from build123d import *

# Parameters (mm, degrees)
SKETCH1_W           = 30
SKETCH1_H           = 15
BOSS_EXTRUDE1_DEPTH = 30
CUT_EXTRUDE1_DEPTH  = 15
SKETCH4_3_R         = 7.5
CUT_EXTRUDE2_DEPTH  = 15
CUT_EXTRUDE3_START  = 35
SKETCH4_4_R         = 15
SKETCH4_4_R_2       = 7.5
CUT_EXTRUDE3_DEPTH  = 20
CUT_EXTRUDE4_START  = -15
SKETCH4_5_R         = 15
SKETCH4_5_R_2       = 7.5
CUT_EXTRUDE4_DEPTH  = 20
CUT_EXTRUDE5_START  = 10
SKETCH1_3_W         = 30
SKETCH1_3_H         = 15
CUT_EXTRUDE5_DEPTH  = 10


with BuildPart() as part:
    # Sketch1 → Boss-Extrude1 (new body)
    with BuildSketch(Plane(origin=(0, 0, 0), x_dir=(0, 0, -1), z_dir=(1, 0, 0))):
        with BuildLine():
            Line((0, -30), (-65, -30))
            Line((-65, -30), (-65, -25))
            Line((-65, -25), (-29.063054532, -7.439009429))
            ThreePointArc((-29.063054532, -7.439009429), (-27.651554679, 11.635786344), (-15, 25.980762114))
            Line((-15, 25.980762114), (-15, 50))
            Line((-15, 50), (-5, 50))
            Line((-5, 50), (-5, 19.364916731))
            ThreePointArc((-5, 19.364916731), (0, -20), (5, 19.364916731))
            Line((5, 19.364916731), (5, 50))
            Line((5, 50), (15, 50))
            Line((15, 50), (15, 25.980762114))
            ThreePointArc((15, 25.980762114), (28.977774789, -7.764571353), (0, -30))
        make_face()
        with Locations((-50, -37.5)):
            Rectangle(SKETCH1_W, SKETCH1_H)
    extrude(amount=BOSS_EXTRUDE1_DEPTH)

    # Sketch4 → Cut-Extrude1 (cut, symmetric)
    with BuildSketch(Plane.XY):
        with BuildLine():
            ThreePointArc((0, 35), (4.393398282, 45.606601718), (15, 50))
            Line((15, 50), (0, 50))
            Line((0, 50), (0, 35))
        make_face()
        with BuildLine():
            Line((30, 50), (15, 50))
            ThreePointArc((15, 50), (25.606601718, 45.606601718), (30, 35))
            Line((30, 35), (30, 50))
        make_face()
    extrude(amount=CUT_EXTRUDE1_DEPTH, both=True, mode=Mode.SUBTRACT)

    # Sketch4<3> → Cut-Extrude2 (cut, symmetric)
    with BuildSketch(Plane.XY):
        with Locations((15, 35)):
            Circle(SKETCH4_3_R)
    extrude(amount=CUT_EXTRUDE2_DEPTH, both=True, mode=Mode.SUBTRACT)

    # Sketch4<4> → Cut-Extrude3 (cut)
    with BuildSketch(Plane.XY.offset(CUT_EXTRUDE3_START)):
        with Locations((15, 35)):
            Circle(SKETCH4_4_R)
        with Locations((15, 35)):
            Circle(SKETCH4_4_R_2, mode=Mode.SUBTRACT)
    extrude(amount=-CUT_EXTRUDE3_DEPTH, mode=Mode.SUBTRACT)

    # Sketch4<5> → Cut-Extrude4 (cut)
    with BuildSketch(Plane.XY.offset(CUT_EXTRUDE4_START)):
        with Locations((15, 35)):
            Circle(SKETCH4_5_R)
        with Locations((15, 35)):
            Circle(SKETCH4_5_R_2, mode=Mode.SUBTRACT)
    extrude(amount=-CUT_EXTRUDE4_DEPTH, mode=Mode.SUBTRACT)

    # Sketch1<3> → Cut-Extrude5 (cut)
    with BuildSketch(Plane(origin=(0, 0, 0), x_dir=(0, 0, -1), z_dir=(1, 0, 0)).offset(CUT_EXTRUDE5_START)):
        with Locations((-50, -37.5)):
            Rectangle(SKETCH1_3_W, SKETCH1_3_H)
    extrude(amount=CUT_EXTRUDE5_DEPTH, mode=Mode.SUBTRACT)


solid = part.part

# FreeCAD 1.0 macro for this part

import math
import FreeCAD as App
import Part
import Sketcher

V = App.Vector


def add_polygon(sketch, points):
    """Adds a closed chain of lines whose ends are joined by coincident constraints."""
    first, n = sketch.GeometryCount, len(points)
    for a, b in zip(points, points[1:] + points[:1]):
        sketch.addGeometry(Part.LineSegment(App.Vector(*a, 0), App.Vector(*b, 0)), False)
    for i in range(n):
        sketch.addConstraint(Sketcher.Constraint("Coincident", first + i, 2, first + (i + 1) % n, 1))

doc = App.newDocument("Part")
params = doc.addObject("Spreadsheet::Sheet", "Params")
for row, (alias, value) in enumerate([
    ("sketch1_radius", "30 mm"),
    ("sketch1_radius2", "20 mm"),
    ("sketch1_width", "20 mm"),
    ("sketch1_width2", "15 mm"),
    ("sketch1_height", "35 mm"),
    ("pad1_length", "30 mm"),
    ("sketch2_radius", "15 mm"),
    ("pocket1_length", "30 mm"),
    ("sketch3_diameter", "15 mm"),
    ("pocket2_length", "30 mm"),
    ("sketch4_diameter", "30 mm"),
    ("sketch4_diameter2", "15 mm"),
    ("pocket3_length", "20 mm"),
    ("sketch5_diameter", "30 mm"),
    ("sketch5_diameter2", "15 mm"),
    ("pocket4_length", "20 mm"),
    ("sketch6_width", "15 mm"),
    ("sketch6_height", "30 mm"),
    ("pocket5_length", "10 mm"),
], start=1):
    params.set(f"A{row}", alias)
    params.set(f"B{row}", "=" + value)
    params.setAlias(f"B{row}", alias)

body = doc.addObject("PartDesign::Body", "Body")

# Sketch on YZ plane
sketch1 = body.newObject("Sketcher::SketchObject", "Sketch")
sketch1.AttachmentSupport = (doc.getObject("YZ_Plane"), [""])
sketch1.MapMode = "FlatFace"
sketch1.addGeometry(Part.LineSegment(V(-30, 35, 0), V(-30, 0, 0)), False)
sketch1.addGeometry(Part.ArcOfCircle(Part.Circle(V(0, 0, 0), V(0, 0, 1), 30), math.radians(180), math.radians(330)), False)
sketch1.addGeometry(Part.LineSegment(V(26, -15, 0), V(50, -15, 0)), False)
sketch1.addGeometry(Part.LineSegment(V(50, -15, 0), V(50, -5, 0)), False)
sketch1.addGeometry(Part.LineSegment(V(50, -5, 0), V(19, -5, 0)), False)
sketch1.addGeometry(Part.ArcOfCircle(Part.Circle(V(0, 0, 0), V(0, 0, 1), 20), math.radians(14), math.radians(346)), False)
sketch1.addGeometry(Part.LineSegment(V(19, 5, 0), V(50, 5, 0)), False)
sketch1.addGeometry(Part.LineSegment(V(50, 5, 0), V(50, 15, 0)), False)
sketch1.addGeometry(Part.LineSegment(V(50, 15, 0), V(26, 15, 0)), False)
sketch1.addGeometry(Part.ArcOfCircle(Part.Circle(V(0, 0, 0), V(0, 0, 1), 30), math.radians(30), math.radians(104)), False)
sketch1.addGeometry(Part.LineSegment(V(-7, 29, 0), V(-25, 65, 0)), False)
sketch1.addGeometry(Part.LineSegment(V(-25, 65, 0), V(-45, 65, 0)), False)
sketch1.addGeometry(Part.LineSegment(V(-45, 65, 0), V(-45, 35, 0)), False)
sketch1.addGeometry(Part.LineSegment(V(-45, 35, 0), V(-30, 35, 0)), False)
sketch1.addConstraint(Sketcher.Constraint("Tangent", 0, 2, 1, 1))
sketch1.addConstraint(Sketcher.Constraint("Coincident", 1, 2, 2, 1))
sketch1.addConstraint(Sketcher.Constraint("Coincident", 2, 2, 3, 1))
sketch1.addConstraint(Sketcher.Constraint("Coincident", 3, 2, 4, 1))
sketch1.addConstraint(Sketcher.Constraint("Coincident", 4, 2, 5, 2))
sketch1.addConstraint(Sketcher.Constraint("Coincident", 5, 1, 6, 1))
sketch1.addConstraint(Sketcher.Constraint("Coincident", 6, 2, 7, 1))
sketch1.addConstraint(Sketcher.Constraint("Coincident", 7, 2, 8, 1))
sketch1.addConstraint(Sketcher.Constraint("Coincident", 8, 2, 9, 1))
sketch1.addConstraint(Sketcher.Constraint("Coincident", 9, 2, 10, 1))
sketch1.addConstraint(Sketcher.Constraint("Coincident", 10, 2, 11, 1))
sketch1.addConstraint(Sketcher.Constraint("Coincident", 11, 2, 12, 1))
sketch1.addConstraint(Sketcher.Constraint("Coincident", 12, 2, 13, 1))
sketch1.addConstraint(Sketcher.Constraint("Coincident", 13, 2, 0, 1))
sketch1.addConstraint(Sketcher.Constraint("Vertical", 0))
sketch1.addConstraint(Sketcher.Constraint("Horizontal", 2))
sketch1.addConstraint(Sketcher.Constraint("Vertical", 3))
sketch1.addConstraint(Sketcher.Constraint("Horizontal", 4))
sketch1.addConstraint(Sketcher.Constraint("Horizontal", 6))
sketch1.addConstraint(Sketcher.Constraint("Vertical", 7))
sketch1.addConstraint(Sketcher.Constraint("Horizontal", 8))
sketch1.addConstraint(Sketcher.Constraint("Horizontal", 11))
sketch1.addConstraint(Sketcher.Constraint("Vertical", 12))
sketch1.addConstraint(Sketcher.Constraint("Horizontal", 13))
sketch1.addConstraint(Sketcher.Constraint("Coincident", 1, 3, -1, 1))
sketch1.addConstraint(Sketcher.Constraint("Coincident", 5, 3, -1, 1))
sketch1.addConstraint(Sketcher.Constraint("Coincident", 9, 3, -1, 1))
sketch1.addConstraint(Sketcher.Constraint("Equal", 1, 9))
sketch1.addConstraint(Sketcher.Constraint("Symmetric", 3, 2, 6, 2, -1))
sketch1.addConstraint(Sketcher.Constraint("Vertical", 1, 2, 8, 2))
sketch1.addConstraint(Sketcher.Constraint("Radius", 1, 30.0))
sketch1.addConstraint(Sketcher.Constraint("Radius", 5, 20.0))
sketch1.addConstraint(Sketcher.Constraint("DistanceX", 11, 2, 11, 1, 20.0))
sketch1.addConstraint(Sketcher.Constraint("DistanceX", 13, 1, 13, 2, 15.0))
sketch1.addConstraint(Sketcher.Constraint("DistanceY", 0, 2, 0, 1, 35.0))
sketch1.addConstraint(Sketcher.Constraint("DistanceY", 3, 1, 3, 2, 10.0))
sketch1.addConstraint(Sketcher.Constraint("DistanceY", 12, 2, 12, 1, 30.0))
sketch1.addConstraint(Sketcher.Constraint("DistanceY", 1, 2, -1, 1, 15.0))
sketch1.addConstraint(Sketcher.Constraint("DistanceX", -1, 1, 2, 2, 50.0))
sketch1.addConstraint(Sketcher.Constraint("DistanceX", 9, 2, -1, 1, 7.439009))
sketch1.setExpression("Constraints[30]", "Params.sketch1_radius")
sketch1.setExpression("Constraints[31]", "Params.sketch1_radius2")
sketch1.setExpression("Constraints[32]", "Params.sketch1_width")
sketch1.setExpression("Constraints[33]", "Params.sketch1_width2")
sketch1.setExpression("Constraints[34]", "Params.sketch1_height")
pad1 = body.newObject("PartDesign::Pad", "Pad")
pad1.Profile = sketch1
pad1.setExpression("Length", "Params.pad1_length")

# Sketch on XY plane
sketch2 = body.newObject("Sketcher::SketchObject", "Sketch001")
sketch2.AttachmentSupport = (doc.getObject("XY_Plane"), [""])
sketch2.MapMode = "FlatFace"
sketch2.addGeometry(Part.ArcOfCircle(Part.Circle(V(15, 35, 0), V(0, 0, 1), 15), math.radians(90), math.radians(180)), False)
sketch2.addGeometry(Part.LineSegment(V(15, 50, 0), V(0, 50, 0)), False)
sketch2.addGeometry(Part.LineSegment(V(0, 50, 0), V(0, 35, 0)), False)
sketch2.addGeometry(Part.LineSegment(V(30, 50, 0), V(15, 50, 0)), False)
sketch2.addGeometry(Part.ArcOfCircle(Part.Circle(V(15, 35, 0), V(0, 0, 1), 15), math.radians(0), math.radians(90)), False)
sketch2.addGeometry(Part.LineSegment(V(30, 35, 0), V(30, 50, 0)), False)
sketch2.addConstraint(Sketcher.Constraint("Tangent", 0, 1, 1, 1))
sketch2.addConstraint(Sketcher.Constraint("Coincident", 1, 2, 2, 1))
sketch2.addConstraint(Sketcher.Constraint("Tangent", 2, 2, 0, 2))
sketch2.addConstraint(Sketcher.Constraint("Tangent", 3, 2, 4, 2))
sketch2.addConstraint(Sketcher.Constraint("Tangent", 4, 1, 5, 1))
sketch2.addConstraint(Sketcher.Constraint("Coincident", 5, 2, 3, 1))
sketch2.addConstraint(Sketcher.Constraint("Horizontal", 1))
sketch2.addConstraint(Sketcher.Constraint("Vertical", 2))
sketch2.addConstraint(Sketcher.Constraint("Horizontal", 3))
sketch2.addConstraint(Sketcher.Constraint("Vertical", 5))
sketch2.addConstraint(Sketcher.Constraint("Coincident", 4, 3, 0, 3))
sketch2.addConstraint(Sketcher.Constraint("Equal", 0, 4))
sketch2.addConstraint(Sketcher.Constraint("PointOnObject", 1, 2, -2))
sketch2.addConstraint(Sketcher.Constraint("Radius", 0, 15.0))
sketch2.addConstraint(Sketcher.Constraint("DistanceY", -1, 1, 0, 3, 35.0))
sketch2.setExpression("Constraints[13]", "Params.sketch2_radius")
pocket1 = body.newObject("PartDesign::Pocket", "Pocket")
pocket1.Profile = sketch2
pocket1.setExpression("Length", "Params.pocket1_length")
pocket1.Midplane = True

# Sketch on XY plane
sketch3 = body.newObject("Sketcher::SketchObject", "Sketch002")
sketch3.AttachmentSupport = (doc.getObject("XY_Plane"), [""])
sketch3.MapMode = "FlatFace"
sketch3.addGeometry(Part.Circle(V(15, 35, 0), V(0, 0, 1), 8), False)
sketch3.addConstraint(Sketcher.Constraint("Diameter", 0, 15.0))
sketch3.addConstraint(Sketcher.Constraint("DistanceX", -1, 1, 0, 3, 15.0))
sketch3.addConstraint(Sketcher.Constraint("DistanceY", -1, 1, 0, 3, 35.0))
sketch3.setExpression("Constraints[0]", "Params.sketch3_diameter")
pocket2 = body.newObject("PartDesign::Pocket", "Pocket001")
pocket2.Profile = sketch3
pocket2.setExpression("Length", "Params.pocket2_length")
pocket2.Midplane = True

# Sketch on XY plane
sketch4 = body.newObject("Sketcher::SketchObject", "Sketch003")
sketch4.AttachmentSupport = (doc.getObject("XY_Plane"), [""])
sketch4.MapMode = "FlatFace"
sketch4.AttachmentOffset = App.Placement(V(0, 0, 35), App.Rotation())
sketch4.addGeometry(Part.Circle(V(15, 35, 0), V(0, 0, 1), 15), False)
sketch4.addGeometry(Part.Circle(V(15, 35, 0), V(0, 0, 1), 8), False)
sketch4.addConstraint(Sketcher.Constraint("Coincident", 1, 3, 0, 3))
sketch4.addConstraint(Sketcher.Constraint("Diameter", 0, 30.0))
sketch4.addConstraint(Sketcher.Constraint("Diameter", 1, 15.0))
sketch4.addConstraint(Sketcher.Constraint("DistanceX", -1, 1, 0, 3, 15.0))
sketch4.addConstraint(Sketcher.Constraint("DistanceY", -1, 1, 0, 3, 35.0))
sketch4.setExpression("Constraints[1]", "Params.sketch4_diameter")
sketch4.setExpression("Constraints[2]", "Params.sketch4_diameter2")
pocket3 = body.newObject("PartDesign::Pocket", "Pocket002")
pocket3.Profile = sketch4
pocket3.setExpression("Length", "Params.pocket3_length")

# Sketch on XY plane
sketch5 = body.newObject("Sketcher::SketchObject", "Sketch004")
sketch5.AttachmentSupport = (doc.getObject("XY_Plane"), [""])
sketch5.MapMode = "FlatFace"
sketch5.AttachmentOffset = App.Placement(V(0, 0, -15), App.Rotation())
sketch5.addGeometry(Part.Circle(V(15, 35, 0), V(0, 0, 1), 15), False)
sketch5.addGeometry(Part.Circle(V(15, 35, 0), V(0, 0, 1), 8), False)
sketch5.addConstraint(Sketcher.Constraint("Coincident", 1, 3, 0, 3))
sketch5.addConstraint(Sketcher.Constraint("Diameter", 0, 30.0))
sketch5.addConstraint(Sketcher.Constraint("Diameter", 1, 15.0))
sketch5.addConstraint(Sketcher.Constraint("DistanceX", -1, 1, 0, 3, 15.0))
sketch5.addConstraint(Sketcher.Constraint("DistanceY", -1, 1, 0, 3, 35.0))
sketch5.setExpression("Constraints[1]", "Params.sketch5_diameter")
sketch5.setExpression("Constraints[2]", "Params.sketch5_diameter2")
pocket4 = body.newObject("PartDesign::Pocket", "Pocket003")
pocket4.Profile = sketch5
pocket4.setExpression("Length", "Params.pocket4_length")

# Sketch on YZ plane
sketch6 = body.newObject("Sketcher::SketchObject", "Sketch005")
sketch6.AttachmentSupport = (doc.getObject("YZ_Plane"), [""])
sketch6.MapMode = "FlatFace"
sketch6.AttachmentOffset = App.Placement(V(0, 0, 10), App.Rotation())
add_polygon(sketch6, [(-30, 65), (-45, 65), (-45, 35), (-30, 35)])  # lines 0-3
sketch6.addConstraint(Sketcher.Constraint("Horizontal", 0))
sketch6.addConstraint(Sketcher.Constraint("Vertical", 1))
sketch6.addConstraint(Sketcher.Constraint("Horizontal", 2))
sketch6.addConstraint(Sketcher.Constraint("Vertical", 3))
sketch6.addConstraint(Sketcher.Constraint("DistanceX", 0, 2, 0, 1, 15.0))
sketch6.addConstraint(Sketcher.Constraint("DistanceY", 1, 2, 1, 1, 30.0))
sketch6.addConstraint(Sketcher.Constraint("DistanceX", 0, 2, -1, 1, 45.0))
sketch6.addConstraint(Sketcher.Constraint("DistanceY", -1, 1, 0, 2, 65.0))
sketch6.setExpression("Constraints[8]", "Params.sketch6_width")
sketch6.setExpression("Constraints[9]", "Params.sketch6_height")
pocket5 = body.newObject("PartDesign::Pocket", "Pocket004")
pocket5.Profile = sketch6
pocket5.setExpression("Length", "Params.pocket5_length")
pocket5.Reversed = True

doc.recompute()
